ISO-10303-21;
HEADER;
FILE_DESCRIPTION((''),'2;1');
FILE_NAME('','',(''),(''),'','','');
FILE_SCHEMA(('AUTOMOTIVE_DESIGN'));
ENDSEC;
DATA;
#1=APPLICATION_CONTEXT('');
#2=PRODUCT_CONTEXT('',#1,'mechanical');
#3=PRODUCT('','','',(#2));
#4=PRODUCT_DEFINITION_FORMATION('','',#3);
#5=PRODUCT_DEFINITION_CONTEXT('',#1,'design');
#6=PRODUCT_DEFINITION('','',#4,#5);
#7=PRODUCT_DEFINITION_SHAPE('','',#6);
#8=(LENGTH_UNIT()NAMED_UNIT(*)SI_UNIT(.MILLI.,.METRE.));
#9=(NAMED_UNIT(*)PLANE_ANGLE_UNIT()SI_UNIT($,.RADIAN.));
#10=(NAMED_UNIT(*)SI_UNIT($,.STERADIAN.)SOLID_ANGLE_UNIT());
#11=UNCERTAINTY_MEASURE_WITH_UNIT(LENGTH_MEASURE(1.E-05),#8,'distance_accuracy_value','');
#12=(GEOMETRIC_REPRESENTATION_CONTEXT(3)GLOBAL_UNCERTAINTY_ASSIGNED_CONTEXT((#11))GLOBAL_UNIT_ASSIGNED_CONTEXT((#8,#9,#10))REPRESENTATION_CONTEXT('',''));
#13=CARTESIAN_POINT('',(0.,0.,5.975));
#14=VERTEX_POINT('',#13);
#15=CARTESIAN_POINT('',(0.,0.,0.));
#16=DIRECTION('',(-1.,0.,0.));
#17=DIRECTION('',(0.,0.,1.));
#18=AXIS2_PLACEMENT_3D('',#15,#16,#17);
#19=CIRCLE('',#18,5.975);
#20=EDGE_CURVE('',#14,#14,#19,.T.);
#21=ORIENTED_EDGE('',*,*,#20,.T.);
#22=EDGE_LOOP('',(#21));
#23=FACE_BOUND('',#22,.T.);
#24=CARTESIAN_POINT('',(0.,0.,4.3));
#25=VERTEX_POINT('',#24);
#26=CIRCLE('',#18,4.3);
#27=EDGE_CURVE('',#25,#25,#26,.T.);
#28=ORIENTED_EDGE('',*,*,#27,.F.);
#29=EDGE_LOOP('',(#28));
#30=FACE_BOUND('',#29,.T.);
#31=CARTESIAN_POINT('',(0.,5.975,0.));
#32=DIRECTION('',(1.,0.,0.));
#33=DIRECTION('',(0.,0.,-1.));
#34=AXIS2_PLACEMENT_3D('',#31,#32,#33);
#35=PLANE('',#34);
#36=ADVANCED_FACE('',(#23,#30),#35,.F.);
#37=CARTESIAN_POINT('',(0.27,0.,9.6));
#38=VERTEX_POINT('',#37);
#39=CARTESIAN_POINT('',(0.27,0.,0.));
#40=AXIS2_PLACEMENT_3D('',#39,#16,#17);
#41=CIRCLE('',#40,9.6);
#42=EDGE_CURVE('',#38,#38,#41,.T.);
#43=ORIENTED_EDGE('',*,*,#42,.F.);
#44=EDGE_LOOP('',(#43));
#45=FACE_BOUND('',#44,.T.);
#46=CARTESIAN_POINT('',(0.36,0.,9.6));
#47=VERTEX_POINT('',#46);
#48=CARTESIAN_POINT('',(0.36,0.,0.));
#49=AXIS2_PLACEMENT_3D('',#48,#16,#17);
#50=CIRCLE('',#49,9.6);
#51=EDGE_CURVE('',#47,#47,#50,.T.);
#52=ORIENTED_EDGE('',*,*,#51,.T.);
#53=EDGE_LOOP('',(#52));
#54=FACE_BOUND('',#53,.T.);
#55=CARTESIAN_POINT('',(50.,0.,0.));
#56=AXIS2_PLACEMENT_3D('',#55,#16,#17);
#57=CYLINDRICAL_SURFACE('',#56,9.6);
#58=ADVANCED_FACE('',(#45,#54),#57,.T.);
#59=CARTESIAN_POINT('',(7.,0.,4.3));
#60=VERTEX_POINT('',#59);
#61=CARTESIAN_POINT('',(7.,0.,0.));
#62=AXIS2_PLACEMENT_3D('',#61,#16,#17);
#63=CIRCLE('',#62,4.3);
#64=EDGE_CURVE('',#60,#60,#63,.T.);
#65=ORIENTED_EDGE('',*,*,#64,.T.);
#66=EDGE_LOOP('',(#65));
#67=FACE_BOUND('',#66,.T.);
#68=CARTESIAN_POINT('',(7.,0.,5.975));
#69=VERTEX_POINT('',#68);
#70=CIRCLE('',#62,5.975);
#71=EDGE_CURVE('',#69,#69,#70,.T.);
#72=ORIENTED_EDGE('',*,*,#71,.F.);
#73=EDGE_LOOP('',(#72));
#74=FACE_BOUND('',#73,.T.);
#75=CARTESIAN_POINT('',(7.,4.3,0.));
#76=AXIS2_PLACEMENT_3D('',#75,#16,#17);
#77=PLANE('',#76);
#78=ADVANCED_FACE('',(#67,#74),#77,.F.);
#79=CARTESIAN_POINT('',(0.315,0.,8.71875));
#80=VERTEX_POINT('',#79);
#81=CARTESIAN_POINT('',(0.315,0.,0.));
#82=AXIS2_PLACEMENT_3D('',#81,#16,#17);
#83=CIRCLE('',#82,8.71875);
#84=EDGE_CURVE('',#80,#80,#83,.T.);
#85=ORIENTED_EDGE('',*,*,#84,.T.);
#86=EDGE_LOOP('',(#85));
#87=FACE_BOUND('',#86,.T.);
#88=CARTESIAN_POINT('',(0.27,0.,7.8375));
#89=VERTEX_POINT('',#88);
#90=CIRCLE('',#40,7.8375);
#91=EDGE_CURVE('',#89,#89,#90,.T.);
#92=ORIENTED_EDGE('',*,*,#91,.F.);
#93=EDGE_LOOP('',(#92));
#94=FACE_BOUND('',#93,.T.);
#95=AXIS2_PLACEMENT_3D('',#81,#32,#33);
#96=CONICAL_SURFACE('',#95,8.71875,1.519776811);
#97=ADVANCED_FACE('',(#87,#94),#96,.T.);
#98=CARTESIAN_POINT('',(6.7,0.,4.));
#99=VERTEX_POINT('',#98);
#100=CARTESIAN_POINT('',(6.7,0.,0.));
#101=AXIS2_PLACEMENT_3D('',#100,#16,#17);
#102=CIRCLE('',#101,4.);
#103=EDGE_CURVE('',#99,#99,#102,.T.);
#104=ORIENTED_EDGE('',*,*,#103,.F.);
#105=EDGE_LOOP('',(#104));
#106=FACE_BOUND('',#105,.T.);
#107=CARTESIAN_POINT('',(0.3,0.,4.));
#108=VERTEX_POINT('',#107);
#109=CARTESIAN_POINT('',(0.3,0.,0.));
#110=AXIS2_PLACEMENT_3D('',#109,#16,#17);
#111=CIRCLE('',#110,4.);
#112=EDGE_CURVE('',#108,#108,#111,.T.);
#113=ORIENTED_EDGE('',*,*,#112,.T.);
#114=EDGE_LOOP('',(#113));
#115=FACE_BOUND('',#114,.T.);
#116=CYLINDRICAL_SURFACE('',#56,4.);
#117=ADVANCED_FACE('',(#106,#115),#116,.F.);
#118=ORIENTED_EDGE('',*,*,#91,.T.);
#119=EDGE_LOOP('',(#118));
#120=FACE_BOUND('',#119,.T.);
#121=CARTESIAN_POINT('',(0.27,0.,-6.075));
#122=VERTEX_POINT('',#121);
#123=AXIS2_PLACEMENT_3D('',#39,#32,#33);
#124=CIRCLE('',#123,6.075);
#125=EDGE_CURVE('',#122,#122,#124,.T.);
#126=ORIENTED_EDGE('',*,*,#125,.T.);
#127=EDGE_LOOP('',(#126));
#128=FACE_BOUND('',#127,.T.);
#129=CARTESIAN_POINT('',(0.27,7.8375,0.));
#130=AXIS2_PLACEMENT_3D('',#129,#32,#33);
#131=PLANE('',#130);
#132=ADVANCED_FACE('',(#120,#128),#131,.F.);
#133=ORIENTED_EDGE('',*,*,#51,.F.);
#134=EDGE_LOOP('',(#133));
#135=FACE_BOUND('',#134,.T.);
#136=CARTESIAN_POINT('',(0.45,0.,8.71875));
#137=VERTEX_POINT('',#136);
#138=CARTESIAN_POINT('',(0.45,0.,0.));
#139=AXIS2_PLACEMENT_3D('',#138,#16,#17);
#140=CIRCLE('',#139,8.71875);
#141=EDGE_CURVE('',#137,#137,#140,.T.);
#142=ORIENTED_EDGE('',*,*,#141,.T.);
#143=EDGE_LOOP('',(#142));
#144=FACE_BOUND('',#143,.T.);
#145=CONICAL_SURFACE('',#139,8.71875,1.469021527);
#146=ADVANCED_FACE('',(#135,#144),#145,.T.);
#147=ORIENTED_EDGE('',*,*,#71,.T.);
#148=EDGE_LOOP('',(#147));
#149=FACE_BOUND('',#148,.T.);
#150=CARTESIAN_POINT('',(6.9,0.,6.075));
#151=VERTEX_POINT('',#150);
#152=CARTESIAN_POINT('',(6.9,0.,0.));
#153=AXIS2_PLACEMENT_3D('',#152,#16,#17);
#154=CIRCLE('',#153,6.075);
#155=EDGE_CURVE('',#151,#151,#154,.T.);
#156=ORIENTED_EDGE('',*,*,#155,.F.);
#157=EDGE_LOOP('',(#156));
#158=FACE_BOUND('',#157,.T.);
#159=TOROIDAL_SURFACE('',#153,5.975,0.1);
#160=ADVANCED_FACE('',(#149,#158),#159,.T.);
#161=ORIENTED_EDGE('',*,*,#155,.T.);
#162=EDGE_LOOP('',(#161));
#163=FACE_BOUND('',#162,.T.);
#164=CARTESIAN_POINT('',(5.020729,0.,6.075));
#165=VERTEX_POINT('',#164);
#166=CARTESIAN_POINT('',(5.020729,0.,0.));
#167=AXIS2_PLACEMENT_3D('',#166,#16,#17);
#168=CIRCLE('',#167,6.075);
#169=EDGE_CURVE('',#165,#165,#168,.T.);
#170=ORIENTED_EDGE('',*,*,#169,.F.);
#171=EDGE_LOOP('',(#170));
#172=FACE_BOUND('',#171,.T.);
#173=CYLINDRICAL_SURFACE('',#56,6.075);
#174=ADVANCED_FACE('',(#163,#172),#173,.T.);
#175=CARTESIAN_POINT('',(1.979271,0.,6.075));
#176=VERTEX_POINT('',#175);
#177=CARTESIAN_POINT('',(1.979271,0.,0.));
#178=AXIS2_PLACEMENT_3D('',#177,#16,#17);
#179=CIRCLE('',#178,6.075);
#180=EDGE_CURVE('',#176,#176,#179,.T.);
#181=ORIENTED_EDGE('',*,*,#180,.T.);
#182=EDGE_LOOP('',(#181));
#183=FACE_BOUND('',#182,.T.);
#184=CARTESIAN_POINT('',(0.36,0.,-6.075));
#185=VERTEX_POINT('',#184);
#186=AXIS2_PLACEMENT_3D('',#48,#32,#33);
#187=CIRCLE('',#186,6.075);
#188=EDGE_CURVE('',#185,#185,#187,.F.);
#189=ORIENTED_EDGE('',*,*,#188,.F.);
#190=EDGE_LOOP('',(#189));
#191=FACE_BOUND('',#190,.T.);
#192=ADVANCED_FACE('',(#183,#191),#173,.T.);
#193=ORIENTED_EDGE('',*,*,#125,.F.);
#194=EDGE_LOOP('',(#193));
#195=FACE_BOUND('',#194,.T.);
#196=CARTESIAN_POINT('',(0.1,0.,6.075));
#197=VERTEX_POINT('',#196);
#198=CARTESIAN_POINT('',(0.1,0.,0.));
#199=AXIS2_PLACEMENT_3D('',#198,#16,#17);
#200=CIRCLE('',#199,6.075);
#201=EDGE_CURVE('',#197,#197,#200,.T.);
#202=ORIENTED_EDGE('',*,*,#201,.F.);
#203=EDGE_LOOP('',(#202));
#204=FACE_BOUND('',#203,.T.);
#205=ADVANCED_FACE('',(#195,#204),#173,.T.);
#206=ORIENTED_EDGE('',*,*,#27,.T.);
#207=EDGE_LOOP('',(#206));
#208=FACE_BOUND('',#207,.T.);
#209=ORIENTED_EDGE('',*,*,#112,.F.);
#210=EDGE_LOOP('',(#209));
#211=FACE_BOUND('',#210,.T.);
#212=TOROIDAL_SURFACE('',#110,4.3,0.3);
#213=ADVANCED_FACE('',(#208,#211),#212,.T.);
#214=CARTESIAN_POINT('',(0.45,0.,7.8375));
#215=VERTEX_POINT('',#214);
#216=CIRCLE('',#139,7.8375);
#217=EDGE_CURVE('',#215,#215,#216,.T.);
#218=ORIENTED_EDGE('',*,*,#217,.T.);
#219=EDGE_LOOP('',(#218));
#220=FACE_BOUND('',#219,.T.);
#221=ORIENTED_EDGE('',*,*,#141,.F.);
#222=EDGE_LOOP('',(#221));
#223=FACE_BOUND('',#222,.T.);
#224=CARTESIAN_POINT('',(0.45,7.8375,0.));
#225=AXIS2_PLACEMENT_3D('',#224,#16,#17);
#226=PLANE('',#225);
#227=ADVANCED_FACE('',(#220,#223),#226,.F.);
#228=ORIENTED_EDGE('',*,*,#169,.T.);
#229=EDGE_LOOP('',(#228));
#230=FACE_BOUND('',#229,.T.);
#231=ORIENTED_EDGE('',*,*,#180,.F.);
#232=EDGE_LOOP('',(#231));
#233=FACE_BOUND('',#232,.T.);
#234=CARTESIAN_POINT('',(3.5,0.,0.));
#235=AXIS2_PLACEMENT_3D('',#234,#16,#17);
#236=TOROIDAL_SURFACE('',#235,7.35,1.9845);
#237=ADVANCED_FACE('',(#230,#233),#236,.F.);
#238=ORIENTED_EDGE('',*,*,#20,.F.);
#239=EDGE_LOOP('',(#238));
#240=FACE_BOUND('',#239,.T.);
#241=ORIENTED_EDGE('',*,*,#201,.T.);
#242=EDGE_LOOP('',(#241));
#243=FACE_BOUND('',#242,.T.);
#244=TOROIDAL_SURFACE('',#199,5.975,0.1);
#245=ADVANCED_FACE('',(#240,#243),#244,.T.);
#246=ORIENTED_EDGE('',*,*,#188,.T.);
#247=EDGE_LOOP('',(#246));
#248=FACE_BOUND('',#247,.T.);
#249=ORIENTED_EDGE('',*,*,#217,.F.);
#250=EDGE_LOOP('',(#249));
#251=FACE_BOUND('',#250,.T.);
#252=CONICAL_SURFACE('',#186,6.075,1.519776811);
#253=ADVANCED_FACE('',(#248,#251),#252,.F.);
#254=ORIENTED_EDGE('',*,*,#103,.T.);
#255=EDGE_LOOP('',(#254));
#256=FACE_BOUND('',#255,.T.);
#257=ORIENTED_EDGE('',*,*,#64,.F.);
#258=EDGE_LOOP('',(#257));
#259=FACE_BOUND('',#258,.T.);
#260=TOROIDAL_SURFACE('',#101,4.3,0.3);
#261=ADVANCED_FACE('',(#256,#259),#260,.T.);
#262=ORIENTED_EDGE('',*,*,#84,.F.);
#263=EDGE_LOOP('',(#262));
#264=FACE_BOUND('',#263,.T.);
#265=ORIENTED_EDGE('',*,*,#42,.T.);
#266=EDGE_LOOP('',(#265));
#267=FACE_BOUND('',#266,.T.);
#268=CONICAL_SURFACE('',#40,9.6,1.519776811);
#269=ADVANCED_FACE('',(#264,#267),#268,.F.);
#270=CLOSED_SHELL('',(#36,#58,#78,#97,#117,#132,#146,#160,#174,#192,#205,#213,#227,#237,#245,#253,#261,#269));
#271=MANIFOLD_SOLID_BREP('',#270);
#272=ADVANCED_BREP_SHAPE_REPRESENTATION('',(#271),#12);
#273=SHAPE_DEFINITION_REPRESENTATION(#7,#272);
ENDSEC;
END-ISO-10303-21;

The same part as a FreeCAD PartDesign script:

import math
import FreeCAD as App
import Part
import Sketcher

doc = App.newDocument("Part")
body = doc.addObject("PartDesign::Body", "Body")

# Sketch on XY plane
sketch1 = body.newObject("Sketcher::SketchObject", "Sketch")
sketch1.AttachmentSupport = (doc.getObject("XY_Plane"), [""])
sketch1.MapMode = "FlatFace"
sketch1.addGeometry([
    Part.LineSegment(App.Vector(0, 5.97, 0), App.Vector(0, 4.3, 0)),  # 0
    Part.ArcOfCircle(Part.Circle(App.Vector(0.3, 4.3, 0), App.Vector(0, 0, 1), 0.3), math.radians(-180), math.radians(-90)),  # 1
    Part.LineSegment(App.Vector(0.3, 4, 0), App.Vector(6.7, 4, 0)),  # 2
    Part.ArcOfCircle(Part.Circle(App.Vector(6.7, 4.3, 0), App.Vector(0, 0, 1), 0.3), math.radians(-90), math.radians(0)),  # 3
    Part.LineSegment(App.Vector(7, 4.3, 0), App.Vector(7, 5.97, 0)),  # 4
    Part.ArcOfCircle(Part.Circle(App.Vector(6.9, 5.97, 0), App.Vector(0, 0, 1), 0.1), math.radians(0), math.radians(90)),  # 5
    Part.LineSegment(App.Vector(6.9, 6.08, 0), App.Vector(5.02, 6.08, 0)),  # 6
    Part.ArcOfCircle(Part.Circle(App.Vector(3.5, 7.35, 0), App.Vector(0, 0, 1), 1.98), math.radians(-140), math.radians(-40)),  # 7
    Part.LineSegment(App.Vector(1.98, 6.08, 0), App.Vector(0.1, 6.08, 0)),  # 8
    Part.ArcOfCircle(Part.Circle(App.Vector(0.1, 5.97, 0), App.Vector(0, 0, 1), 0.1), math.radians(90), math.radians(180)),  # 9
], False)
sketch1.addConstraint([
    Sketcher.Constraint("Tangent", 0, 2, 1, 1),
    Sketcher.Constraint("Tangent", 1, 2, 2, 1),
    Sketcher.Constraint("Tangent", 2, 2, 3, 1),
    Sketcher.Constraint("Tangent", 3, 2, 4, 1),
    Sketcher.Constraint("Tangent", 4, 2, 5, 1),
    Sketcher.Constraint("Tangent", 5, 2, 6, 1),
    Sketcher.Constraint("Coincident", 6, 2, 7, 2),
    Sketcher.Constraint("Coincident", 7, 1, 8, 1),
    Sketcher.Constraint("Tangent", 8, 2, 9, 1),
    Sketcher.Constraint("Tangent", 9, 2, 0, 1),
    Sketcher.Constraint("Vertical", 0),
    Sketcher.Constraint("Horizontal", 2),
    Sketcher.Constraint("Vertical", 4),
    Sketcher.Constraint("Horizontal", 6),
    Sketcher.Constraint("Horizontal", 8),
    Sketcher.Constraint("Equal", 1, 3),
    Sketcher.Constraint("Equal", 5, 9),
    Sketcher.Constraint("PointOnObject", 0, 2, -2),
    Sketcher.Constraint("Horizontal", 5, 3, 9, 3),
    Sketcher.Constraint("Equal", 6, 8),
    Sketcher.Constraint("Radius", 1, 0.3),
    Sketcher.Constraint("Radius", 5, 0.1),
    Sketcher.Constraint("DistanceX", 2, 1, 2, 2, 6.4),
    Sketcher.Constraint("DistanceY", -1, 1, 1, 2, 4.0),
    Sketcher.Constraint("Radius", 7, 1.9845),
    Sketcher.Constraint("DistanceY", 0, 2, 0, 1, 1.675),
    Sketcher.Constraint("DistanceY", -1, 1, 7, 3, 7.35),
])
revolution = body.newObject("PartDesign::Revolution", "Revolution")
revolution.Profile = sketch1
revolution.ReferenceAxis = (sketch1, ["H_Axis"])
revolution.Angle = 360

# Sketch on XY plane
sketch2 = body.newObject("Sketcher::SketchObject", "Sketch001")
sketch2.AttachmentSupport = (doc.getObject("XY_Plane"), [""])
sketch2.MapMode = "FlatFace"
sketch2.addGeometry([
    Part.LineSegment(App.Vector(0.27, 9.6, 0), App.Vector(0.32, 8.72, 0)),  # 0
    Part.LineSegment(App.Vector(0.32, 8.72, 0), App.Vector(0.27, 7.84, 0)),  # 1
    Part.LineSegment(App.Vector(0.27, 7.84, 0), App.Vector(0.27, 6.08, 0)),  # 2
    Part.LineSegment(App.Vector(0.27, 6.08, 0), App.Vector(0.36, 6.08, 0)),  # 3
    Part.LineSegment(App.Vector(0.36, 6.08, 0), App.Vector(0.45, 7.84, 0)),  # 4
    Part.LineSegment(App.Vector(0.45, 7.84, 0), App.Vector(0.45, 8.72, 0)),  # 5
    Part.LineSegment(App.Vector(0.45, 8.72, 0), App.Vector(0.36, 9.6, 0)),  # 6
    Part.LineSegment(App.Vector(0.36, 9.6, 0), App.Vector(0.27, 9.6, 0)),  # 7
], False)
sketch2.addConstraint([
    Sketcher.Constraint("Coincident", 0, 2, 1, 1),
    Sketcher.Constraint("Coincident", 1, 2, 2, 1),
    Sketcher.Constraint("Coincident", 2, 2, 3, 1),
    Sketcher.Constraint("Coincident", 3, 2, 4, 1),
    Sketcher.Constraint("Coincident", 4, 2, 5, 1),
    Sketcher.Constraint("Coincident", 5, 2, 6, 1),
    Sketcher.Constraint("Coincident", 6, 2, 7, 1),
    Sketcher.Constraint("Coincident", 7, 2, 0, 1),
    Sketcher.Constraint("Vertical", 2),
    Sketcher.Constraint("Horizontal", 3),
    Sketcher.Constraint("Vertical", 5),
    Sketcher.Constraint("Horizontal", 7),
    Sketcher.Constraint("Parallel", 1, 4),
    Sketcher.Constraint("Horizontal", 1, 2, 4, 2),
    Sketcher.Constraint("Horizontal", 0, 2, 5, 2),
    Sketcher.Constraint("Vertical", 3, 2, 6, 2),
    Sketcher.Constraint("Vertical", 2, 2, 7, 2),
    Sketcher.Constraint("Equal", 0, 1),
    Sketcher.Constraint("DistanceX", 3, 1, 3, 2, 0.09),
    Sketcher.Constraint("DistanceY", -1, 1, 6, 2, 9.6),
    Sketcher.Constraint("DistanceX", -1, 1, 1, 2, 0.27),
    Sketcher.Constraint("DistanceX", -1, 1, 4, 2, 0.45),
    Sketcher.Constraint("DistanceY", 2, 2, 2, 1, 1.7625),
    Sketcher.Constraint("DistanceX", -1, 1, 0, 2, 0.315),
])
revolution2 = body.newObject("PartDesign::Revolution", "Revolution001")
revolution2.Profile = sketch2
revolution2.ReferenceAxis = (sketch2, ["H_Axis"])
revolution2.Angle = 360

doc.recompute()
